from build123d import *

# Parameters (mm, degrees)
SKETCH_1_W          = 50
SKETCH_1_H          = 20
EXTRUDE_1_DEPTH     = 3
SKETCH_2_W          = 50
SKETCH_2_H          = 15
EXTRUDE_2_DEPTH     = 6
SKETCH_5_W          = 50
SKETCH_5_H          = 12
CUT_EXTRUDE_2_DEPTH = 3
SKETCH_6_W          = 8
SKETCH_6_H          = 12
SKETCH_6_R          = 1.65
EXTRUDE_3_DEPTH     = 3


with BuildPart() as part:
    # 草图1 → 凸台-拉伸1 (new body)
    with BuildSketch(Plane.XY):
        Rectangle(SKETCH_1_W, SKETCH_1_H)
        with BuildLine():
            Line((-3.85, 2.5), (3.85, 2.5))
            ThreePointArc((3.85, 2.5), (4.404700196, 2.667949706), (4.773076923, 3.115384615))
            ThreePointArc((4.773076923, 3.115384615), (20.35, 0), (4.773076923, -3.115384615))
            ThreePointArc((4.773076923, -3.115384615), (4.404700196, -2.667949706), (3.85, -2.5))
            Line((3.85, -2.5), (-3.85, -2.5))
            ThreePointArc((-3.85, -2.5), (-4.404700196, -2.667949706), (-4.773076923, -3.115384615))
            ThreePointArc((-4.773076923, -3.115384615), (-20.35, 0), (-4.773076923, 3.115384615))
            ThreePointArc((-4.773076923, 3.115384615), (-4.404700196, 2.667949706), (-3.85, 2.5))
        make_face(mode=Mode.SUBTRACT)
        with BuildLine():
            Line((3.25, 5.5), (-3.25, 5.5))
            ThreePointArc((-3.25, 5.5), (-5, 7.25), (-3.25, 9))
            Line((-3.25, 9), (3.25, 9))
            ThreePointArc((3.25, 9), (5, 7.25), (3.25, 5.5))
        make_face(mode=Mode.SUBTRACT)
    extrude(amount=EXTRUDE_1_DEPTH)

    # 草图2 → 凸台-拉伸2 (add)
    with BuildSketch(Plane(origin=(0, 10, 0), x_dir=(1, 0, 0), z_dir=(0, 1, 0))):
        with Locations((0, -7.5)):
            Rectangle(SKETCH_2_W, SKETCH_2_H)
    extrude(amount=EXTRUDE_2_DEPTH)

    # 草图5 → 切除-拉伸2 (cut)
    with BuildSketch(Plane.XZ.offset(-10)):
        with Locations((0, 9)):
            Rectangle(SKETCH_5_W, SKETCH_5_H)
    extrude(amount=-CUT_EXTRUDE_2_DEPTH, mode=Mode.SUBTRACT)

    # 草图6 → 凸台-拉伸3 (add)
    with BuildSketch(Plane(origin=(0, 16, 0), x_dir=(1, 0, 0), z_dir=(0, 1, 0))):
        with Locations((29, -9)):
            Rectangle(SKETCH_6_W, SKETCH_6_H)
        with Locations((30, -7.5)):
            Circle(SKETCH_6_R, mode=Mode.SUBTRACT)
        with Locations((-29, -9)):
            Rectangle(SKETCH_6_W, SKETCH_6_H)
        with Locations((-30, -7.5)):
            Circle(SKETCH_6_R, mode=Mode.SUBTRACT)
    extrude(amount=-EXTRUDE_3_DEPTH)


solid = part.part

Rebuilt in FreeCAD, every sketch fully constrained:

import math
import FreeCAD as App
import Part
import Sketcher
from FreeCAD import Vector
Q = App.Units.Quantity


def add_polygon(sketch, points):
    """Adds a closed chain of lines whose ends are joined by coincident constraints."""
    first, n = sketch.GeometryCount, len(points)
    for a, b in zip(points, points[1:] + points[:1]):
        sketch.addGeometry(Part.LineSegment(App.Vector(*a, 0), App.Vector(*b, 0)), False)
    for i in range(n):
        sketch.addConstraint(Sketcher.Constraint("Coincident", first + i, 2, first + (i + 1) % n, 1))

doc = App.newDocument("Part")
body = doc.addObject("PartDesign::Body", "Body")

sketch1 = body.newObject("Sketcher::SketchObject", "Sketch")
sketch1.AttachmentSupport = (doc.getObject("XY_Plane"), [""])
sketch1.MapMode = "FlatFace"
add_polygon(sketch1, [(-25, 10), (-25, -10), (25, -10), (25, 10)])
sketch1.addGeometry(Part.ArcOfCircle(Part.Circle(Vector(-3.8, 3.5, 0), Vector(0, 0, 1), 1), math.radians(-157), math.radians(-90)), False)
sketch1.addGeometry(Part.LineSegment(Vector(-3.9, 2.5, 0), Vector(3.9, 2.5, 0)), False)
sketch1.addGeometry(Part.ArcOfCircle(Part.Circle(Vector(3.8, 3.5, 0), Vector(0, 0, 1), 1), math.radians(-90), math.radians(-23)), False)
sketch1.addGeometry(Part.ArcOfCircle(Part.Circle(Vector(12.2, 0, 0), Vector(0, 0, 1), 8.1), math.radians(-157), math.radians(157)), False)
sketch1.addGeometry(Part.ArcOfCircle(Part.Circle(Vector(3.8, -3.5, 0), Vector(0, 0, 1), 1), math.radians(23), math.radians(90)), False)
sketch1.addGeometry(Part.LineSegment(Vector(3.9, -2.5, 0), Vector(-3.9, -2.5, 0)), False)
sketch1.addGeometry(Part.ArcOfCircle(Part.Circle(Vector(-3.8, -3.5, 0), Vector(0, 0, 1), 1), math.radians(90), math.radians(157)), False)
sketch1.addGeometry(Part.ArcOfCircle(Part.Circle(Vector(-12.2, 0, 0), Vector(0, 0, 1), 8.1), math.radians(23), math.radians(337)), False)
sketch1.addGeometry(Part.ArcOfCircle(Part.Circle(Vector(3.2, 7.2, 0), Vector(0, 0, 1), 1.8), math.radians(-90), math.radians(90)), False)
sketch1.addGeometry(Part.LineSegment(Vector(3.2, 5.5, 0), Vector(-3.2, 5.5, 0)), False)
sketch1.addGeometry(Part.ArcOfCircle(Part.Circle(Vector(-3.2, 7.2, 0), Vector(0, 0, 1), 1.8), math.radians(90), math.radians(270)), False)
sketch1.addGeometry(Part.LineSegment(Vector(-3.2, 9, 0), Vector(3.2, 9, 0)), False)
sketch1.addConstraint(Sketcher.Constraint("Tangent", 4, 2, 5, 1))
sketch1.addConstraint(Sketcher.Constraint("Tangent", 5, 2, 6, 1))
sketch1.addConstraint(Sketcher.Constraint("Tangent", 6, 2, 7, 2))
sketch1.addConstraint(Sketcher.Constraint("Tangent", 7, 1, 8, 1))
sketch1.addConstraint(Sketcher.Constraint("Tangent", 8, 2, 9, 1))
sketch1.addConstraint(Sketcher.Constraint("Tangent", 9, 2, 10, 1))
sketch1.addConstraint(Sketcher.Constraint("Tangent", 10, 2, 11, 2))
sketch1.addConstraint(Sketcher.Constraint("Tangent", 11, 1, 4, 1))
sketch1.addConstraint(Sketcher.Constraint("Tangent", 12, 1, 13, 1))
sketch1.addConstraint(Sketcher.Constraint("Tangent", 13, 2, 14, 2))
sketch1.addConstraint(Sketcher.Constraint("Tangent", 14, 1, 15, 1))
sketch1.addConstraint(Sketcher.Constraint("Tangent", 15, 2, 12, 2))
sketch1.addConstraint(Sketcher.Constraint("Vertical", 0))
sketch1.addConstraint(Sketcher.Constraint("Horizontal", 1))
sketch1.addConstraint(Sketcher.Constraint("Vertical", 2))
sketch1.addConstraint(Sketcher.Constraint("Horizontal", 3))
sketch1.addConstraint(Sketcher.Constraint("Horizontal", 5))
sketch1.addConstraint(Sketcher.Constraint("Horizontal", 9))
sketch1.addConstraint(Sketcher.Constraint("Horizontal", 13))
sketch1.addConstraint(Sketcher.Constraint("Horizontal", 15))
sketch1.addConstraint(Sketcher.Constraint("Equal", 4, 6))
sketch1.addConstraint(Sketcher.Constraint("Equal", 6, 8))
sketch1.addConstraint(Sketcher.Constraint("Equal", 8, 10))
sketch1.addConstraint(Sketcher.Constraint("Equal", 7, 11))
sketch1.addConstraint(Sketcher.Constraint("Symmetric", 4, 3, 8, 3, -1, 1))
sketch1.addConstraint(Sketcher.Constraint("Symmetric", 0, 2, 2, 2, -1, 1))
sketch1.addConstraint(Sketcher.Constraint("Symmetric", 7, 3, 11, 3, -2))
sketch1.addConstraint(Sketcher.Constraint("Radius", 4, Q("1 mm")))
sketch1.addConstraint(Sketcher.Constraint("Radius", 7, Q("8.1 mm")))
sketch1.addConstraint(Sketcher.Constraint("DistanceX", 1, 1, 1, 2, Q("50 mm")))
sketch1.addConstraint(Sketcher.Constraint("DistanceY", 0, 2, 0, 1, Q("20 mm")))
sketch1.addConstraint(Sketcher.Constraint("Radius", 12, Q("1.75 mm")))
sketch1.addConstraint(Sketcher.Constraint("DistanceX", 5, 1, 5, 2, Q("7.7 mm")))
sketch1.addConstraint(Sketcher.Constraint("DistanceX", 13, 2, 13, 1, Q("6.5 mm")))
sketch1.addConstraint(Sketcher.Constraint("DistanceY", -1, 1, 14, 1, Q("9 mm")))
sketch1.addConstraint(Sketcher.Constraint("DistanceY", 8, 3, 6, 3, Q("7 mm")))
sketch1.addConstraint(Sketcher.Constraint("DistanceX", 12, 3, 7, 3, Q("9 mm")))
pad1 = body.newObject("PartDesign::Pad", "Pad")
pad1.Profile = sketch1
pad1.Length = 3

sketch2 = body.newObject("Sketcher::SketchObject", "Sketch001")
sketch2.AttachmentSupport = (doc.getObject("XZ_Plane"), [""])
sketch2.MapMode = "FlatFace"
sketch2.AttachmentOffset = App.Placement(Vector(0, 0, -10), App.Rotation())
add_polygon(sketch2, [(-25, 0), (-25, 15), (25, 15), (25, 0)])
sketch2.addConstraint(Sketcher.Constraint("Vertical", 0))
sketch2.addConstraint(Sketcher.Constraint("Horizontal", 1))
sketch2.addConstraint(Sketcher.Constraint("Vertical", 2))
sketch2.addConstraint(Sketcher.Constraint("Horizontal", 3))
sketch2.addConstraint(Sketcher.Constraint("Symmetric", 2, 2, 3, 2, -1, 1))
sketch2.addConstraint(Sketcher.Constraint("DistanceX", 1, 1, 1, 2, Q("50 mm")))
sketch2.addConstraint(Sketcher.Constraint("DistanceY", 0, 1, 0, 2, Q("15 mm")))
pad2 = body.newObject("PartDesign::Pad", "Pad001")
pad2.Profile = sketch2
pad2.Length = 6
pad2.Reversed = True

sketch3 = body.newObject("Sketcher::SketchObject", "Sketch002")
sketch3.AttachmentSupport = (doc.getObject("XZ_Plane"), [""])
sketch3.MapMode = "FlatFace"
sketch3.AttachmentOffset = App.Placement(Vector(0, 0, -10), App.Rotation())
add_polygon(sketch3, [(-25, 15), (-25, 3), (25, 3), (25, 15)])
sketch3.addConstraint(Sketcher.Constraint("Vertical", 0))
sketch3.addConstraint(Sketcher.Constraint("Horizontal", 1))
sketch3.addConstraint(Sketcher.Constraint("Vertical", 2))
sketch3.addConstraint(Sketcher.Constraint("Horizontal", 3))
sketch3.addConstraint(Sketcher.Constraint("DistanceX", 1, 1, 1, 2, Q("50 mm")))
sketch3.addConstraint(Sketcher.Constraint("DistanceY", 0, 2, 0, 1, Q("12 mm")))
sketch3.addConstraint(Sketcher.Constraint("DistanceX", 0, 2, -1, 1, Q("25 mm")))
sketch3.addConstraint(Sketcher.Constraint("DistanceY", -1, 1, 0, 2, Q("3 mm")))
pocket1 = body.newObject("PartDesign::Pocket", "Pocket")
pocket1.Profile = sketch3
pocket1.Length = 3

sketch4 = body.newObject("Sketcher::SketchObject", "Sketch003")
sketch4.AttachmentSupport = (doc.getObject("XZ_Plane"), [""])
sketch4.MapMode = "FlatFace"
sketch4.AttachmentOffset = App.Placement(Vector(0, 0, -16), App.Rotation())
add_polygon(sketch4, [(25, 3), (25, 15), (33, 15), (33, 3)])
sketch4.addGeometry(Part.Circle(Vector(30, 7.5, 0), Vector(0, 0, 1), 1.6), False)
add_polygon(sketch4, [(-33, 3), (-33, 15), (-25, 15), (-25, 3)])
sketch4.addGeometry(Part.Circle(Vector(-30, 7.5, 0), Vector(0, 0, 1), 1.6), False)
sketch4.addConstraint(Sketcher.Constraint("Vertical", 0))
sketch4.addConstraint(Sketcher.Constraint("Horizontal", 1))
sketch4.addConstraint(Sketcher.Constraint("Vertical", 2))
sketch4.addConstraint(Sketcher.Constraint("Horizontal", 3))
sketch4.addConstraint(Sketcher.Constraint("Vertical", 5))
sketch4.addConstraint(Sketcher.Constraint("Horizontal", 6))
sketch4.addConstraint(Sketcher.Constraint("Vertical", 7))
sketch4.addConstraint(Sketcher.Constraint("Horizontal", 8))
sketch4.addConstraint(Sketcher.Constraint("Equal", 4, 9))
sketch4.addConstraint(Sketcher.Constraint("Symmetric", 4, 3, 9, 3, -2))
sketch4.addConstraint(Sketcher.Constraint("Symmetric", 1, 2, 5, 2, -2))
sketch4.addConstraint(Sketcher.Constraint("Symmetric", 3, 2, 7, 2, -2))
sketch4.addConstraint(Sketcher.Constraint("Diameter", 4, Q("3.3 mm")))
sketch4.addConstraint(Sketcher.Constraint("DistanceX", 1, 1, 1, 2, Q("8 mm")))
sketch4.addConstraint(Sketcher.Constraint("DistanceY", 0, 1, 0, 2, Q("12 mm")))
sketch4.addConstraint(Sketcher.Constraint("DistanceX", -1, 1, 4, 3, Q("30 mm")))
sketch4.addConstraint(Sketcher.Constraint("DistanceX", -1, 1, 0, 2, Q("25 mm")))
sketch4.addConstraint(Sketcher.Constraint("DistanceY", -1, 1, 0, 2, Q("15 mm")))
sketch4.addConstraint(Sketcher.Constraint("DistanceY", -1, 1, 4, 3, Q("7.5 mm")))
pad3 = body.newObject("PartDesign::Pad", "Pad002")
pad3.Profile = sketch4
pad3.Length = 3

doc.recompute()
